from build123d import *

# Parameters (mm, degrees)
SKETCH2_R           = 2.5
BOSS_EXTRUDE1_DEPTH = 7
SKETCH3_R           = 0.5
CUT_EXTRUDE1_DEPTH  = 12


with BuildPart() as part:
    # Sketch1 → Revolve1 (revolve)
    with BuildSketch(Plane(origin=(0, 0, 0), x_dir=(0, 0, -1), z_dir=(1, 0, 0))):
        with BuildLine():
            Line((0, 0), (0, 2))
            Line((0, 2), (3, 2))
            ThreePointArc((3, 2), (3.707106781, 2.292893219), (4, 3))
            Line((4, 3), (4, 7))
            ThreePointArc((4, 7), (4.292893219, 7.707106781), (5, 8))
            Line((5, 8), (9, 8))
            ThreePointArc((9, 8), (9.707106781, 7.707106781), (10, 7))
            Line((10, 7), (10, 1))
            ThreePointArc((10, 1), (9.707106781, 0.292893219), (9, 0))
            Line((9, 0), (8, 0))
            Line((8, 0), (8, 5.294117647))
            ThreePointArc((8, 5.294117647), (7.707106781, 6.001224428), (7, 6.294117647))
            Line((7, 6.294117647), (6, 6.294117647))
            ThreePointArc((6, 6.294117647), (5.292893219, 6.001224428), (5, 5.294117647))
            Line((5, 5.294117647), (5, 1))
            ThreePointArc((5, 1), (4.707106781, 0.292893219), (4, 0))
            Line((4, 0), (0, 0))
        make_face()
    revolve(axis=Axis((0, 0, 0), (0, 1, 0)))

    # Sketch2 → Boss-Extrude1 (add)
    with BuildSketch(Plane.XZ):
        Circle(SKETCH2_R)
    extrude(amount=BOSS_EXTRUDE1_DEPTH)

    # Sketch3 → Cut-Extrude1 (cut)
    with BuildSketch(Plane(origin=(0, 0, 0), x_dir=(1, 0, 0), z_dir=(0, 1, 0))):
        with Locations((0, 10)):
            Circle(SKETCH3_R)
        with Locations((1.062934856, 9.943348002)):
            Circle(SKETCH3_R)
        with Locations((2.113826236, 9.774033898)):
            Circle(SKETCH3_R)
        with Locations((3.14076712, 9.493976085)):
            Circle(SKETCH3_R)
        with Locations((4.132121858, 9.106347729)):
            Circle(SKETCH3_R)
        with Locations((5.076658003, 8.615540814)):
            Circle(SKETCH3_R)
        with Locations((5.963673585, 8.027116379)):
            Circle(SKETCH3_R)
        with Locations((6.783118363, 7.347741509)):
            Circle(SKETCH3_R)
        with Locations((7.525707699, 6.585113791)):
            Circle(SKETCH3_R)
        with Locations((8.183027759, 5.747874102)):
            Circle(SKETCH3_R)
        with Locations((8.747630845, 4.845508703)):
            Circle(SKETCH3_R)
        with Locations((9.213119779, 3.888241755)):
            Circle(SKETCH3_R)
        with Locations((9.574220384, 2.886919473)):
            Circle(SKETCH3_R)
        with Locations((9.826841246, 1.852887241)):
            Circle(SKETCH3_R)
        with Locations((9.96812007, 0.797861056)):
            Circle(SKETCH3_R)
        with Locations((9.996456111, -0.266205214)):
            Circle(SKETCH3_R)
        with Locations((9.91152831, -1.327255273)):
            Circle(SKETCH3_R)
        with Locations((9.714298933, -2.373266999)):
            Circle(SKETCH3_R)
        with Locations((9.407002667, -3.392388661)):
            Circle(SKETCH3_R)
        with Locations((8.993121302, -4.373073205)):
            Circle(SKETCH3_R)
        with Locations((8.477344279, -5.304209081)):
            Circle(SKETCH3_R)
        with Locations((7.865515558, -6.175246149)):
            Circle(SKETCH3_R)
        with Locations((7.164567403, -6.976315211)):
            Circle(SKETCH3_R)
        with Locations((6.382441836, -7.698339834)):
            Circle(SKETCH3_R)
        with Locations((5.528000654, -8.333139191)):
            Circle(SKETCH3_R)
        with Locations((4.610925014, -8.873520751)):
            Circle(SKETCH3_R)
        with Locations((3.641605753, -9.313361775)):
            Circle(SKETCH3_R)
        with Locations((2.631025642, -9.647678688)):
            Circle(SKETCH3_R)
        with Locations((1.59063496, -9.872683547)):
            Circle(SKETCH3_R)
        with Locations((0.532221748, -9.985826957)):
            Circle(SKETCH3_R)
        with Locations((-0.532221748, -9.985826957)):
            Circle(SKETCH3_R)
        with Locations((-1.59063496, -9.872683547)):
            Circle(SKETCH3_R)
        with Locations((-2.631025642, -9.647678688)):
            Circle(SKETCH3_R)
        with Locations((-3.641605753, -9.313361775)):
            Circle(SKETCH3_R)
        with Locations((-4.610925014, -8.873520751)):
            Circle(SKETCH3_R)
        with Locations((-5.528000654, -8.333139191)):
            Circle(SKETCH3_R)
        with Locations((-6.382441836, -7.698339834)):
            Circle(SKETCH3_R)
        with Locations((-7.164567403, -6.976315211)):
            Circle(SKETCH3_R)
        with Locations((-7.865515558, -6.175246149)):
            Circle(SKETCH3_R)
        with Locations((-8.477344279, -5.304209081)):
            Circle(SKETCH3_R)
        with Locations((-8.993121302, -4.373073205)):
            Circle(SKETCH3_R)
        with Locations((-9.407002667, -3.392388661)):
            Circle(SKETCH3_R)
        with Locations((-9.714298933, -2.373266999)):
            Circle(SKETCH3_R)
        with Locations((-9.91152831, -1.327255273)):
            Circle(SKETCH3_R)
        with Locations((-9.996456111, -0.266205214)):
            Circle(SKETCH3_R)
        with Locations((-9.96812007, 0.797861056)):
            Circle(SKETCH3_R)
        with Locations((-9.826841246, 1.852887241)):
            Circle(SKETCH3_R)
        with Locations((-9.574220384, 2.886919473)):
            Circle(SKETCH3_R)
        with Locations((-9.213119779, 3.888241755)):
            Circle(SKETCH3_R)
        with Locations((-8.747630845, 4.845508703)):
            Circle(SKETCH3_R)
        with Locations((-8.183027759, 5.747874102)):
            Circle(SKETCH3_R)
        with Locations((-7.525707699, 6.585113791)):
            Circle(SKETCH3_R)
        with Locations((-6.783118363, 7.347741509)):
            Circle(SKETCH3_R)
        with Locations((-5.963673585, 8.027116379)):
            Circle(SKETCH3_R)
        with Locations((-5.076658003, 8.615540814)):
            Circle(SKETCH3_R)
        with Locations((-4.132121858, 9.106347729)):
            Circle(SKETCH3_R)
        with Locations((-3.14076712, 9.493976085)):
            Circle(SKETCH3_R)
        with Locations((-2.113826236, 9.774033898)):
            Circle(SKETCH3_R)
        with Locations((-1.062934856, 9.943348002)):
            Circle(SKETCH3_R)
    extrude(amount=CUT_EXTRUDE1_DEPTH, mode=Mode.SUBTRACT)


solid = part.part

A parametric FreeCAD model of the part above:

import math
import FreeCAD as App
import Part
import Sketcher
Q = App.Units.Quantity

doc = App.newDocument("Part")
params = doc.addObject("Spreadsheet::Sheet", "Params")
for row, (alias, value) in enumerate([
    ("sketch1_radius", "1 mm"),
    ("sketch1_width", "2 mm"),
    ("sketch1_width2", "6 mm"),
    ("revolution_angle", "360 deg"),
    ("sketch2_diameter", "5 mm"),
    ("pad1_length", "7 mm"),
    ("sketch3_diameter", "1 mm"),
    ("pocket1_length", "12 mm"),
], start=1):
    params.set(f"A{row}", alias)
    params.set(f"B{row}", "=" + value)
    params.setAlias(f"B{row}", alias)

body = doc.addObject("PartDesign::Body", "Body")

sketch1 = body.newObject("Sketcher::SketchObject", "Sketch")
sketch1.AttachmentSupport = (doc.getObject("YZ_Plane"), [""])
sketch1.MapMode = "FlatFace"
sketch1.addGeometry([
    Part.LineSegment(App.Vector(2, 0, 0), App.Vector(0, 0, 0)),
    Part.LineSegment(App.Vector(0, 0, 0), App.Vector(0, -4, 0)),
    Part.ArcOfCircle(Part.Circle(App.Vector(1, -4, 0), App.Vector(0, 0, 1), 1), math.radians(-180), math.radians(-90)),
    Part.LineSegment(App.Vector(1, -5, 0), App.Vector(5.3, -5, 0)),
    Part.ArcOfCircle(Part.Circle(App.Vector(5.3, -6, 0), App.Vector(0, 0, 1), 1), math.radians(0), math.radians(90)),
    Part.LineSegment(App.Vector(6.3, -6, 0), App.Vector(6.3, -7, 0)),
    Part.ArcOfCircle(Part.Circle(App.Vector(5.3, -7, 0), App.Vector(0, 0, 1), 1), math.radians(-90), math.radians(0)),
    Part.LineSegment(App.Vector(5.3, -8, 0), App.Vector(0, -8, 0)),
    Part.LineSegment(App.Vector(0, -8, 0), App.Vector(0, -9, 0)),
    Part.ArcOfCircle(Part.Circle(App.Vector(1, -9, 0), App.Vector(0, 0, 1), 1), math.radians(-180), math.radians(-90)),
    Part.LineSegment(App.Vector(1, -10, 0), App.Vector(7, -10, 0)),
    Part.ArcOfCircle(Part.Circle(App.Vector(7, -9, 0), App.Vector(0, 0, 1), 1), math.radians(-90), math.radians(0)),
    Part.LineSegment(App.Vector(8, -9, 0), App.Vector(8, -5, 0)),
    Part.ArcOfCircle(Part.Circle(App.Vector(7, -5, 0), App.Vector(0, 0, 1), 1), math.radians(0), math.radians(90)),
    Part.LineSegment(App.Vector(7, -4, 0), App.Vector(3, -4, 0)),
    Part.ArcOfCircle(Part.Circle(App.Vector(3, -3, 0), App.Vector(0, 0, 1), 1), math.radians(-180), math.radians(-90)),
    Part.LineSegment(App.Vector(2, -3, 0), App.Vector(2, 0, 0)),
], False)
sketch1.addConstraint([
    Sketcher.Constraint("Coincident", 0, 2, 1, 1),
    Sketcher.Constraint("Tangent", 1, 2, 2, 1),
    Sketcher.Constraint("Tangent", 2, 2, 3, 1),
    Sketcher.Constraint("Tangent", 3, 2, 4, 2),
    Sketcher.Constraint("Tangent", 4, 1, 5, 1),
    Sketcher.Constraint("Tangent", 5, 2, 6, 2),
    Sketcher.Constraint("Tangent", 6, 1, 7, 1),
    Sketcher.Constraint("Coincident", 7, 2, 8, 1),
    Sketcher.Constraint("Tangent", 8, 2, 9, 1),
    Sketcher.Constraint("Tangent", 9, 2, 10, 1),
    Sketcher.Constraint("Tangent", 10, 2, 11, 1),
    Sketcher.Constraint("Tangent", 11, 2, 12, 1),
    Sketcher.Constraint("Tangent", 12, 2, 13, 1),
    Sketcher.Constraint("Tangent", 13, 2, 14, 1),
    Sketcher.Constraint("Tangent", 14, 2, 15, 2),
    Sketcher.Constraint("Tangent", 15, 1, 16, 1),
    Sketcher.Constraint("Coincident", 16, 2, 0, 1),
    Sketcher.Constraint("Horizontal", 0),
    Sketcher.Constraint("Vertical", 1),
    Sketcher.Constraint("Horizontal", 3),
    Sketcher.Constraint("Vertical", 5),
    Sketcher.Constraint("Horizontal", 7),
    Sketcher.Constraint("Vertical", 8),
    Sketcher.Constraint("Horizontal", 10),
    Sketcher.Constraint("Vertical", 12),
    Sketcher.Constraint("Horizontal", 14),
    Sketcher.Constraint("Vertical", 16),
    Sketcher.Constraint("Coincident", 0, 2, -1, 1),
    Sketcher.Constraint("Equal", 2, 4),
    Sketcher.Constraint("Equal", 4, 6),
    Sketcher.Constraint("Equal", 6, 9),
    Sketcher.Constraint("Equal", 9, 11),
    Sketcher.Constraint("Equal", 11, 13),
    Sketcher.Constraint("Equal", 13, 15),
    Sketcher.Constraint("PointOnObject", 7, 2, -2),
    Sketcher.Constraint("Horizontal", 13, 3, 2, 2),
    Sketcher.Constraint("Equal", 14, 1),
    Sketcher.Constraint("Equal", 5, 8),
    Sketcher.Constraint("Equal", 1, 12),
    Sketcher.Constraint("Radius", 2, Q("1 mm")),
    Sketcher.Constraint("DistanceX", 0, 2, 0, 1, Q("2 mm")),
    Sketcher.Constraint("DistanceX", 10, 1, 10, 2, Q("6 mm")),
    Sketcher.Constraint("DistanceX", 3, 1, 3, 2, Q("4.294118 mm")),
])
sketch1.setExpression("Constraints[39]", "Params.sketch1_radius")
sketch1.setExpression("Constraints[40]", "Params.sketch1_width")
sketch1.setExpression("Constraints[41]", "Params.sketch1_width2")
revolution = body.newObject("PartDesign::Revolution", "Revolution")
revolution.Profile = sketch1
revolution.ReferenceAxis = (sketch1, ["H_Axis"])
revolution.setExpression("Angle", "Params.revolution_angle")

sketch2 = body.newObject("Sketcher::SketchObject", "Sketch001")
sketch2.AttachmentSupport = (doc.getObject("XZ_Plane"), [""])
sketch2.MapMode = "FlatFace"
sketch2.addGeometry(Part.Circle(App.Vector(0, 0, 0), App.Vector(0, 0, 1), 2.5), False)
sketch2.addConstraint([
    Sketcher.Constraint("Coincident", 0, 3, -1, 1),
    Sketcher.Constraint("Diameter", 0, Q("5 mm")),
])
sketch2.setExpression("Constraints[1]", "Params.sketch2_diameter")
pad1 = body.newObject("PartDesign::Pad", "Pad")
pad1.Profile = sketch2
pad1.setExpression("Length", "Params.pad1_length")

sketch3 = body.newObject("Sketcher::SketchObject", "Sketch002")
sketch3.AttachmentSupport = (doc.getObject("XZ_Plane"), [""])
sketch3.MapMode = "FlatFace"
sketch3.addGeometry([
    Part.Circle(App.Vector(0, -10, 0), App.Vector(0, 0, 1), 0.5),
    Part.Circle(App.Vector(1.1, -9.9, 0), App.Vector(0, 0, 1), 0.5),
    Part.Circle(App.Vector(2.1, -9.8, 0), App.Vector(0, 0, 1), 0.5),
    Part.Circle(App.Vector(3.1, -9.5, 0), App.Vector(0, 0, 1), 0.5),
    Part.Circle(App.Vector(4.1, -9.1, 0), App.Vector(0, 0, 1), 0.5),
    Part.Circle(App.Vector(5.1, -8.6, 0), App.Vector(0, 0, 1), 0.5),
    Part.Circle(App.Vector(6, -8, 0), App.Vector(0, 0, 1), 0.5),
    Part.Circle(App.Vector(6.8, -7.3, 0), App.Vector(0, 0, 1), 0.5),
    Part.Circle(App.Vector(7.5, -6.6, 0), App.Vector(0, 0, 1), 0.5),
    Part.Circle(App.Vector(8.2, -5.7, 0), App.Vector(0, 0, 1), 0.5),
    Part.Circle(App.Vector(8.7, -4.8, 0), App.Vector(0, 0, 1), 0.5),
    Part.Circle(App.Vector(9.2, -3.9, 0), App.Vector(0, 0, 1), 0.5),
    Part.Circle(App.Vector(9.6, -2.9, 0), App.Vector(0, 0, 1), 0.5),
    Part.Circle(App.Vector(9.8, -1.9, 0), App.Vector(0, 0, 1), 0.5),
    Part.Circle(App.Vector(10, -0.8, 0), App.Vector(0, 0, 1), 0.5),
    Part.Circle(App.Vector(10, 0.3, 0), App.Vector(0, 0, 1), 0.5),
    Part.Circle(App.Vector(9.9, 1.3, 0), App.Vector(0, 0, 1), 0.5),
    Part.Circle(App.Vector(9.7, 2.4, 0), App.Vector(0, 0, 1), 0.5),
    Part.Circle(App.Vector(9.4, 3.4, 0), App.Vector(0, 0, 1), 0.5),
    Part.Circle(App.Vector(9, 4.4, 0), App.Vector(0, 0, 1), 0.5),
    Part.Circle(App.Vector(8.5, 5.3, 0), App.Vector(0, 0, 1), 0.5),
    Part.Circle(App.Vector(7.9, 6.2, 0), App.Vector(0, 0, 1), 0.5),
    Part.Circle(App.Vector(7.2, 7, 0), App.Vector(0, 0, 1), 0.5),
    Part.Circle(App.Vector(6.4, 7.7, 0), App.Vector(0, 0, 1), 0.5),
    Part.Circle(App.Vector(5.5, 8.3, 0), App.Vector(0, 0, 1), 0.5),
    Part.Circle(App.Vector(4.6, 8.9, 0), App.Vector(0, 0, 1), 0.5),
    Part.Circle(App.Vector(3.6, 9.3, 0), App.Vector(0, 0, 1), 0.5),
    Part.Circle(App.Vector(2.6, 9.6, 0), App.Vector(0, 0, 1), 0.5),
    Part.Circle(App.Vector(1.6, 9.9, 0), App.Vector(0, 0, 1), 0.5),
    Part.Circle(App.Vector(0.5, 10, 0), App.Vector(0, 0, 1), 0.5),
    Part.Circle(App.Vector(-0.5, 10, 0), App.Vector(0, 0, 1), 0.5),
    Part.Circle(App.Vector(-1.6, 9.9, 0), App.Vector(0, 0, 1), 0.5),
    Part.Circle(App.Vector(-2.6, 9.6, 0), App.Vector(0, 0, 1), 0.5),
    Part.Circle(App.Vector(-3.6, 9.3, 0), App.Vector(0, 0, 1), 0.5),
    Part.Circle(App.Vector(-4.6, 8.9, 0), App.Vector(0, 0, 1), 0.5),
    Part.Circle(App.Vector(-5.5, 8.3, 0), App.Vector(0, 0, 1), 0.5),
    Part.Circle(App.Vector(-6.4, 7.7, 0), App.Vector(0, 0, 1), 0.5),
    Part.Circle(App.Vector(-7.2, 7, 0), App.Vector(0, 0, 1), 0.5),
    Part.Circle(App.Vector(-7.9, 6.2, 0), App.Vector(0, 0, 1), 0.5),
    Part.Circle(App.Vector(-8.5, 5.3, 0), App.Vector(0, 0, 1), 0.5),
    Part.Circle(App.Vector(-9, 4.4, 0), App.Vector(0, 0, 1), 0.5),
    Part.Circle(App.Vector(-9.4, 3.4, 0), App.Vector(0, 0, 1), 0.5),
    Part.Circle(App.Vector(-9.7, 2.4, 0), App.Vector(0, 0, 1), 0.5),
    Part.Circle(App.Vector(-9.9, 1.3, 0), App.Vector(0, 0, 1), 0.5),
    Part.Circle(App.Vector(-10, 0.3, 0), App.Vector(0, 0, 1), 0.5),
    Part.Circle(App.Vector(-10, -0.8, 0), App.Vector(0, 0, 1), 0.5),
    Part.Circle(App.Vector(-9.8, -1.9, 0), App.Vector(0, 0, 1), 0.5),
    Part.Circle(App.Vector(-9.6, -2.9, 0), App.Vector(0, 0, 1), 0.5),
    Part.Circle(App.Vector(-9.2, -3.9, 0), App.Vector(0, 0, 1), 0.5),
    Part.Circle(App.Vector(-8.7, -4.8, 0), App.Vector(0, 0, 1), 0.5),
    Part.Circle(App.Vector(-8.2, -5.7, 0), App.Vector(0, 0, 1), 0.5),
    Part.Circle(App.Vector(-7.5, -6.6, 0), App.Vector(0, 0, 1), 0.5),
    Part.Circle(App.Vector(-6.8, -7.3, 0), App.Vector(0, 0, 1), 0.5),
    Part.Circle(App.Vector(-6, -8, 0), App.Vector(0, 0, 1), 0.5),
    Part.Circle(App.Vector(-5.1, -8.6, 0), App.Vector(0, 0, 1), 0.5),
    Part.Circle(App.Vector(-4.1, -9.1, 0), App.Vector(0, 0, 1), 0.5),
    Part.Circle(App.Vector(-3.1, -9.5, 0), App.Vector(0, 0, 1), 0.5),
    Part.Circle(App.Vector(-2.1, -9.8, 0), App.Vector(0, 0, 1), 0.5),
    Part.Circle(App.Vector(-1.1, -9.9, 0), App.Vector(0, 0, 1), 0.5),
], False)
sketch3.addConstraint([
    Sketcher.Constraint("Equal", 0, 1),
    Sketcher.Constraint("Equal", 1, 2),
    Sketcher.Constraint("Equal", 2, 3),
    Sketcher.Constraint("Equal", 3, 4),
    Sketcher.Constraint("Equal", 4, 5),
    Sketcher.Constraint("Equal", 5, 6),
    Sketcher.Constraint("Equal", 6, 7),
    Sketcher.Constraint("Equal", 7, 8),
    Sketcher.Constraint("Equal", 8, 9),
    Sketcher.Constraint("Equal", 9, 10),
    Sketcher.Constraint("Equal", 10, 11),
    Sketcher.Constraint("Equal", 11, 12),
    Sketcher.Constraint("Equal", 12, 13),
    Sketcher.Constraint("Equal", 13, 14),
    Sketcher.Constraint("Equal", 14, 15),
    Sketcher.Constraint("Equal", 15, 16),
    Sketcher.Constraint("Equal", 16, 17),
    Sketcher.Constraint("Equal", 17, 18),
    Sketcher.Constraint("Equal", 18, 19),
    Sketcher.Constraint("Equal", 19, 20),
    Sketcher.Constraint("Equal", 20, 21),
    Sketcher.Constraint("Equal", 21, 22),
    Sketcher.Constraint("Equal", 22, 23),
    Sketcher.Constraint("Equal", 23, 24),
    Sketcher.Constraint("Equal", 24, 25),
    Sketcher.Constraint("Equal", 25, 26),
    Sketcher.Constraint("Equal", 26, 27),
    Sketcher.Constraint("Equal", 27, 28),
    Sketcher.Constraint("Equal", 28, 29),
    Sketcher.Constraint("Equal", 29, 30),
    Sketcher.Constraint("Equal", 30, 31),
    Sketcher.Constraint("Equal", 31, 32),
    Sketcher.Constraint("Equal", 32, 33),
    Sketcher.Constraint("Equal", 33, 34),
    Sketcher.Constraint("Equal", 34, 35),
    Sketcher.Constraint("Equal", 35, 36),
    Sketcher.Constraint("Equal", 36, 37),
    Sketcher.Constraint("Equal", 37, 38),
    Sketcher.Constraint("Equal", 38, 39),
    Sketcher.Constraint("Equal", 39, 40),
    Sketcher.Constraint("Equal", 40, 41),
    Sketcher.Constraint("Equal", 41, 42),
    Sketcher.Constraint("Equal", 42, 43),
    Sketcher.Constraint("Equal", 43, 44),
    Sketcher.Constraint("Equal", 44, 45),
    Sketcher.Constraint("Equal", 45, 46),
    Sketcher.Constraint("Equal", 46, 47),
    Sketcher.Constraint("Equal", 47, 48),
    Sketcher.Constraint("Equal", 48, 49),
    Sketcher.Constraint("Equal", 49, 50),
    Sketcher.Constraint("Equal", 50, 51),
    Sketcher.Constraint("Equal", 51, 52),
    Sketcher.Constraint("Equal", 52, 53),
    Sketcher.Constraint("Equal", 53, 54),
    Sketcher.Constraint("Equal", 54, 55),
    Sketcher.Constraint("Equal", 55, 56),
    Sketcher.Constraint("Equal", 56, 57),
    Sketcher.Constraint("Equal", 57, 58),
    Sketcher.Constraint("Symmetric", 29, 3, 30, 3, -2),
    Sketcher.Constraint("Symmetric", 28, 3, 31, 3, -2),
    Sketcher.Constraint("Symmetric", 27, 3, 32, 3, -2),
    Sketcher.Constraint("Symmetric", 26, 3, 33, 3, -2),
    Sketcher.Constraint("Symmetric", 25, 3, 34, 3, -2),
    Sketcher.Constraint("Symmetric", 24, 3, 35, 3, -2),
    Sketcher.Constraint("Symmetric", 23, 3, 36, 3, -2),
    Sketcher.Constraint("Symmetric", 22, 3, 37, 3, -2),
    Sketcher.Constraint("Symmetric", 21, 3, 38, 3, -2),
    Sketcher.Constraint("Symmetric", 20, 3, 39, 3, -2),
    Sketcher.Constraint("Symmetric", 19, 3, 40, 3, -2),
    Sketcher.Constraint("Symmetric", 18, 3, 41, 3, -2),
    Sketcher.Constraint("Symmetric", 17, 3, 42, 3, -2),
    Sketcher.Constraint("Symmetric", 16, 3, 43, 3, -2),
    Sketcher.Constraint("Symmetric", 15, 3, 44, 3, -2),
    Sketcher.Constraint("Symmetric", 14, 3, 45, 3, -2),
    Sketcher.Constraint("Symmetric", 13, 3, 46, 3, -2),
    Sketcher.Constraint("Symmetric", 12, 3, 47, 3, -2),
    Sketcher.Constraint("Symmetric", 11, 3, 48, 3, -2),
    Sketcher.Constraint("Symmetric", 10, 3, 49, 3, -2),
    Sketcher.Constraint("Symmetric", 9, 3, 50, 3, -2),
    Sketcher.Constraint("Symmetric", 8, 3, 51, 3, -2),
    Sketcher.Constraint("Symmetric", 7, 3, 52, 3, -2),
    Sketcher.Constraint("Symmetric", 6, 3, 53, 3, -2),
    Sketcher.Constraint("Symmetric", 5, 3, 54, 3, -2),
    Sketcher.Constraint("Symmetric", 4, 3, 55, 3, -2),
    Sketcher.Constraint("Symmetric", 3, 3, 56, 3, -2),
    Sketcher.Constraint("Symmetric", 2, 3, 57, 3, -2),
    Sketcher.Constraint("Symmetric", 1, 3, 58, 3, -2),
    Sketcher.Constraint("PointOnObject", 0, 3, -2),
    Sketcher.Constraint("Diameter", 0, Q("1 mm")),
    Sketcher.Constraint("DistanceY", 0, 3, -1, 1, Q("10 mm")),
    Sketcher.Constraint("DistanceX", 7, 3, 11, 3, Q("2.430001 mm")),
    Sketcher.Constraint("DistanceX", -1, 1, 24, 3, Q("5.528001 mm")),
    Sketcher.Constraint("DistanceY", 1, 3, 4, 3, Q("0.837 mm")),
    Sketcher.Constraint("DistanceX", 11, 3, 14, 3, Q("0.755 mm")),
    Sketcher.Constraint("DistanceX", 19, 3, 14, 3, Q("0.974999 mm")),
    Sketcher.Constraint("DistanceX", -1, 1, 17, 3, Q("9.714299 mm")),
    Sketcher.Constraint("DistanceY", 5, 3, 7, 3, Q("1.267799 mm")),
    Sketcher.Constraint("DistanceY", 7, 3, 11, 3, Q("3.4595 mm")),
    Sketcher.Constraint("DistanceX", 11, 3, 12, 3, Q("0.361101 mm")),
    Sketcher.Constraint("DistanceY", 23, 3, 24, 3, Q("0.634799 mm")),
    Sketcher.Constraint("DistanceX", 27, 3, 25, 3, Q("1.979899 mm")),
    Sketcher.Constraint("DistanceX", 56, 3, 1, 3, Q("4.203702 mm")),
    Sketcher.Constraint("DistanceY", 1, 3, -1, 1, Q("9.943348 mm")),
    Sketcher.Constraint("DistanceX", -1, 1, 4, 3, Q("4.132122 mm")),
    Sketcher.Constraint("DistanceX", -1, 1, 5, 3, Q("5.076658 mm")),
    Sketcher.Constraint("DistanceY", 5, 3, -1, 1, Q("8.615541 mm")),
    Sketcher.Constraint("DistanceX", -1, 1, 7, 3, Q("6.783118 mm")),
    Sketcher.Constraint("DistanceX", -1, 1, 10, 3, Q("8.747631 mm")),
    Sketcher.Constraint("DistanceY", 10, 3, -1, 1, Q("4.845509 mm")),
    Sketcher.Constraint("DistanceY", 12, 3, -1, 1, Q("2.886919 mm")),
    Sketcher.Constraint("DistanceX", -1, 1, 13, 3, Q("9.826841 mm")),
    Sketcher.Constraint("DistanceY", 14, 3, -1, 1, Q("0.797861 mm")),
    Sketcher.Constraint("DistanceX", -1, 1, 16, 3, Q("9.911528 mm")),
    Sketcher.Constraint("DistanceY", -1, 1, 18, 3, Q("3.392389 mm")),
    Sketcher.Constraint("DistanceY", -1, 1, 20, 3, Q("5.304209 mm")),
    Sketcher.Constraint("DistanceX", -1, 1, 23, 3, Q("6.382442 mm")),
    Sketcher.Constraint("DistanceY", -1, 1, 23, 3, Q("7.69834 mm")),
    Sketcher.Constraint("DistanceY", -1, 1, 25, 3, Q("8.873521 mm")),
    Sketcher.Constraint("DistanceY", -1, 1, 26, 3, Q("9.313362 mm")),
    Sketcher.Constraint("DistanceY", -1, 1, 27, 3, Q("9.647679 mm")),
    Sketcher.Constraint("DistanceX", -1, 1, 29, 3, Q("0.532222 mm")),
    Sketcher.Constraint("DistanceX", 1, 3, 2, 3, Q("1.050891 mm")),
    Sketcher.Constraint("DistanceX", 2, 3, 3, 3, Q("1.026941 mm")),
    Sketcher.Constraint("DistanceY", 1, 3, 3, 3, Q("0.449372 mm")),
    Sketcher.Constraint("DistanceX", 4, 3, 6, 3, Q("1.831552 mm")),
    Sketcher.Constraint("DistanceY", 4, 3, 6, 3, Q("1.079231 mm")),
    Sketcher.Constraint("DistanceX", 7, 3, 8, 3, Q("0.742589 mm")),
    Sketcher.Constraint("DistanceX", 8, 3, 9, 3, Q("0.65732 mm")),
    Sketcher.Constraint("DistanceY", 8, 3, 9, 3, Q("0.83724 mm")),
    Sketcher.Constraint("DistanceY", 10, 3, 13, 3, Q("2.992621 mm")),
    Sketcher.Constraint("DistanceY", 15, 3, 16, 3, Q("1.06105 mm")),
    Sketcher.Constraint("DistanceY", 16, 3, 17, 3, Q("1.046012 mm")),
    Sketcher.Constraint("DistanceY", 14, 3, 17, 3, Q("3.171128 mm")),
    Sketcher.Constraint("DistanceX", 18, 3, 13, 3, Q("0.419839 mm")),
    Sketcher.Constraint("DistanceX", 20, 3, 18, 3, Q("0.929658 mm")),
    Sketcher.Constraint("DistanceX", 20, 3, 15, 3, Q("1.519112 mm")),
    Sketcher.Constraint("DistanceX", 21, 3, 20, 3, Q("0.611829 mm")),
    Sketcher.Constraint("DistanceY", 17, 3, 21, 3, Q("3.801979 mm")),
    Sketcher.Constraint("DistanceX", 22, 3, 21, 3, Q("0.700948 mm")),
    Sketcher.Constraint("DistanceY", 21, 3, 22, 3, Q("0.801069 mm")),
    Sketcher.Constraint("DistanceX", 25, 3, 21, 3, Q("3.254591 mm")),
    Sketcher.Constraint("DistanceX", 26, 3, 25, 3, Q("0.969319 mm")),
    Sketcher.Constraint("DistanceX", 28, 3, 27, 3, Q("1.040391 mm")),
    Sketcher.Constraint("DistanceY", 26, 3, 28, 3, Q("0.559322 mm")),
    Sketcher.Constraint("DistanceY", 27, 3, 29, 3, Q("0.338148 mm")),
    Sketcher.Constraint("DistanceY", 2, 3, -1, 1, Q("9.774034 mm")),
    Sketcher.Constraint("DistanceY", 8, 3, -1, 1, Q("6.585114 mm")),
    Sketcher.Constraint("DistanceY", -1, 1, 19, 3, Q("4.373073 mm")),
])
sketch3.setExpression("Constraints[88]", "Params.sketch3_diameter")
pocket1 = body.newObject("PartDesign::Pocket", "Pocket")
pocket1.Profile = sketch3
pocket1.setExpression("Length", "Params.pocket1_length")

doc.recompute()
